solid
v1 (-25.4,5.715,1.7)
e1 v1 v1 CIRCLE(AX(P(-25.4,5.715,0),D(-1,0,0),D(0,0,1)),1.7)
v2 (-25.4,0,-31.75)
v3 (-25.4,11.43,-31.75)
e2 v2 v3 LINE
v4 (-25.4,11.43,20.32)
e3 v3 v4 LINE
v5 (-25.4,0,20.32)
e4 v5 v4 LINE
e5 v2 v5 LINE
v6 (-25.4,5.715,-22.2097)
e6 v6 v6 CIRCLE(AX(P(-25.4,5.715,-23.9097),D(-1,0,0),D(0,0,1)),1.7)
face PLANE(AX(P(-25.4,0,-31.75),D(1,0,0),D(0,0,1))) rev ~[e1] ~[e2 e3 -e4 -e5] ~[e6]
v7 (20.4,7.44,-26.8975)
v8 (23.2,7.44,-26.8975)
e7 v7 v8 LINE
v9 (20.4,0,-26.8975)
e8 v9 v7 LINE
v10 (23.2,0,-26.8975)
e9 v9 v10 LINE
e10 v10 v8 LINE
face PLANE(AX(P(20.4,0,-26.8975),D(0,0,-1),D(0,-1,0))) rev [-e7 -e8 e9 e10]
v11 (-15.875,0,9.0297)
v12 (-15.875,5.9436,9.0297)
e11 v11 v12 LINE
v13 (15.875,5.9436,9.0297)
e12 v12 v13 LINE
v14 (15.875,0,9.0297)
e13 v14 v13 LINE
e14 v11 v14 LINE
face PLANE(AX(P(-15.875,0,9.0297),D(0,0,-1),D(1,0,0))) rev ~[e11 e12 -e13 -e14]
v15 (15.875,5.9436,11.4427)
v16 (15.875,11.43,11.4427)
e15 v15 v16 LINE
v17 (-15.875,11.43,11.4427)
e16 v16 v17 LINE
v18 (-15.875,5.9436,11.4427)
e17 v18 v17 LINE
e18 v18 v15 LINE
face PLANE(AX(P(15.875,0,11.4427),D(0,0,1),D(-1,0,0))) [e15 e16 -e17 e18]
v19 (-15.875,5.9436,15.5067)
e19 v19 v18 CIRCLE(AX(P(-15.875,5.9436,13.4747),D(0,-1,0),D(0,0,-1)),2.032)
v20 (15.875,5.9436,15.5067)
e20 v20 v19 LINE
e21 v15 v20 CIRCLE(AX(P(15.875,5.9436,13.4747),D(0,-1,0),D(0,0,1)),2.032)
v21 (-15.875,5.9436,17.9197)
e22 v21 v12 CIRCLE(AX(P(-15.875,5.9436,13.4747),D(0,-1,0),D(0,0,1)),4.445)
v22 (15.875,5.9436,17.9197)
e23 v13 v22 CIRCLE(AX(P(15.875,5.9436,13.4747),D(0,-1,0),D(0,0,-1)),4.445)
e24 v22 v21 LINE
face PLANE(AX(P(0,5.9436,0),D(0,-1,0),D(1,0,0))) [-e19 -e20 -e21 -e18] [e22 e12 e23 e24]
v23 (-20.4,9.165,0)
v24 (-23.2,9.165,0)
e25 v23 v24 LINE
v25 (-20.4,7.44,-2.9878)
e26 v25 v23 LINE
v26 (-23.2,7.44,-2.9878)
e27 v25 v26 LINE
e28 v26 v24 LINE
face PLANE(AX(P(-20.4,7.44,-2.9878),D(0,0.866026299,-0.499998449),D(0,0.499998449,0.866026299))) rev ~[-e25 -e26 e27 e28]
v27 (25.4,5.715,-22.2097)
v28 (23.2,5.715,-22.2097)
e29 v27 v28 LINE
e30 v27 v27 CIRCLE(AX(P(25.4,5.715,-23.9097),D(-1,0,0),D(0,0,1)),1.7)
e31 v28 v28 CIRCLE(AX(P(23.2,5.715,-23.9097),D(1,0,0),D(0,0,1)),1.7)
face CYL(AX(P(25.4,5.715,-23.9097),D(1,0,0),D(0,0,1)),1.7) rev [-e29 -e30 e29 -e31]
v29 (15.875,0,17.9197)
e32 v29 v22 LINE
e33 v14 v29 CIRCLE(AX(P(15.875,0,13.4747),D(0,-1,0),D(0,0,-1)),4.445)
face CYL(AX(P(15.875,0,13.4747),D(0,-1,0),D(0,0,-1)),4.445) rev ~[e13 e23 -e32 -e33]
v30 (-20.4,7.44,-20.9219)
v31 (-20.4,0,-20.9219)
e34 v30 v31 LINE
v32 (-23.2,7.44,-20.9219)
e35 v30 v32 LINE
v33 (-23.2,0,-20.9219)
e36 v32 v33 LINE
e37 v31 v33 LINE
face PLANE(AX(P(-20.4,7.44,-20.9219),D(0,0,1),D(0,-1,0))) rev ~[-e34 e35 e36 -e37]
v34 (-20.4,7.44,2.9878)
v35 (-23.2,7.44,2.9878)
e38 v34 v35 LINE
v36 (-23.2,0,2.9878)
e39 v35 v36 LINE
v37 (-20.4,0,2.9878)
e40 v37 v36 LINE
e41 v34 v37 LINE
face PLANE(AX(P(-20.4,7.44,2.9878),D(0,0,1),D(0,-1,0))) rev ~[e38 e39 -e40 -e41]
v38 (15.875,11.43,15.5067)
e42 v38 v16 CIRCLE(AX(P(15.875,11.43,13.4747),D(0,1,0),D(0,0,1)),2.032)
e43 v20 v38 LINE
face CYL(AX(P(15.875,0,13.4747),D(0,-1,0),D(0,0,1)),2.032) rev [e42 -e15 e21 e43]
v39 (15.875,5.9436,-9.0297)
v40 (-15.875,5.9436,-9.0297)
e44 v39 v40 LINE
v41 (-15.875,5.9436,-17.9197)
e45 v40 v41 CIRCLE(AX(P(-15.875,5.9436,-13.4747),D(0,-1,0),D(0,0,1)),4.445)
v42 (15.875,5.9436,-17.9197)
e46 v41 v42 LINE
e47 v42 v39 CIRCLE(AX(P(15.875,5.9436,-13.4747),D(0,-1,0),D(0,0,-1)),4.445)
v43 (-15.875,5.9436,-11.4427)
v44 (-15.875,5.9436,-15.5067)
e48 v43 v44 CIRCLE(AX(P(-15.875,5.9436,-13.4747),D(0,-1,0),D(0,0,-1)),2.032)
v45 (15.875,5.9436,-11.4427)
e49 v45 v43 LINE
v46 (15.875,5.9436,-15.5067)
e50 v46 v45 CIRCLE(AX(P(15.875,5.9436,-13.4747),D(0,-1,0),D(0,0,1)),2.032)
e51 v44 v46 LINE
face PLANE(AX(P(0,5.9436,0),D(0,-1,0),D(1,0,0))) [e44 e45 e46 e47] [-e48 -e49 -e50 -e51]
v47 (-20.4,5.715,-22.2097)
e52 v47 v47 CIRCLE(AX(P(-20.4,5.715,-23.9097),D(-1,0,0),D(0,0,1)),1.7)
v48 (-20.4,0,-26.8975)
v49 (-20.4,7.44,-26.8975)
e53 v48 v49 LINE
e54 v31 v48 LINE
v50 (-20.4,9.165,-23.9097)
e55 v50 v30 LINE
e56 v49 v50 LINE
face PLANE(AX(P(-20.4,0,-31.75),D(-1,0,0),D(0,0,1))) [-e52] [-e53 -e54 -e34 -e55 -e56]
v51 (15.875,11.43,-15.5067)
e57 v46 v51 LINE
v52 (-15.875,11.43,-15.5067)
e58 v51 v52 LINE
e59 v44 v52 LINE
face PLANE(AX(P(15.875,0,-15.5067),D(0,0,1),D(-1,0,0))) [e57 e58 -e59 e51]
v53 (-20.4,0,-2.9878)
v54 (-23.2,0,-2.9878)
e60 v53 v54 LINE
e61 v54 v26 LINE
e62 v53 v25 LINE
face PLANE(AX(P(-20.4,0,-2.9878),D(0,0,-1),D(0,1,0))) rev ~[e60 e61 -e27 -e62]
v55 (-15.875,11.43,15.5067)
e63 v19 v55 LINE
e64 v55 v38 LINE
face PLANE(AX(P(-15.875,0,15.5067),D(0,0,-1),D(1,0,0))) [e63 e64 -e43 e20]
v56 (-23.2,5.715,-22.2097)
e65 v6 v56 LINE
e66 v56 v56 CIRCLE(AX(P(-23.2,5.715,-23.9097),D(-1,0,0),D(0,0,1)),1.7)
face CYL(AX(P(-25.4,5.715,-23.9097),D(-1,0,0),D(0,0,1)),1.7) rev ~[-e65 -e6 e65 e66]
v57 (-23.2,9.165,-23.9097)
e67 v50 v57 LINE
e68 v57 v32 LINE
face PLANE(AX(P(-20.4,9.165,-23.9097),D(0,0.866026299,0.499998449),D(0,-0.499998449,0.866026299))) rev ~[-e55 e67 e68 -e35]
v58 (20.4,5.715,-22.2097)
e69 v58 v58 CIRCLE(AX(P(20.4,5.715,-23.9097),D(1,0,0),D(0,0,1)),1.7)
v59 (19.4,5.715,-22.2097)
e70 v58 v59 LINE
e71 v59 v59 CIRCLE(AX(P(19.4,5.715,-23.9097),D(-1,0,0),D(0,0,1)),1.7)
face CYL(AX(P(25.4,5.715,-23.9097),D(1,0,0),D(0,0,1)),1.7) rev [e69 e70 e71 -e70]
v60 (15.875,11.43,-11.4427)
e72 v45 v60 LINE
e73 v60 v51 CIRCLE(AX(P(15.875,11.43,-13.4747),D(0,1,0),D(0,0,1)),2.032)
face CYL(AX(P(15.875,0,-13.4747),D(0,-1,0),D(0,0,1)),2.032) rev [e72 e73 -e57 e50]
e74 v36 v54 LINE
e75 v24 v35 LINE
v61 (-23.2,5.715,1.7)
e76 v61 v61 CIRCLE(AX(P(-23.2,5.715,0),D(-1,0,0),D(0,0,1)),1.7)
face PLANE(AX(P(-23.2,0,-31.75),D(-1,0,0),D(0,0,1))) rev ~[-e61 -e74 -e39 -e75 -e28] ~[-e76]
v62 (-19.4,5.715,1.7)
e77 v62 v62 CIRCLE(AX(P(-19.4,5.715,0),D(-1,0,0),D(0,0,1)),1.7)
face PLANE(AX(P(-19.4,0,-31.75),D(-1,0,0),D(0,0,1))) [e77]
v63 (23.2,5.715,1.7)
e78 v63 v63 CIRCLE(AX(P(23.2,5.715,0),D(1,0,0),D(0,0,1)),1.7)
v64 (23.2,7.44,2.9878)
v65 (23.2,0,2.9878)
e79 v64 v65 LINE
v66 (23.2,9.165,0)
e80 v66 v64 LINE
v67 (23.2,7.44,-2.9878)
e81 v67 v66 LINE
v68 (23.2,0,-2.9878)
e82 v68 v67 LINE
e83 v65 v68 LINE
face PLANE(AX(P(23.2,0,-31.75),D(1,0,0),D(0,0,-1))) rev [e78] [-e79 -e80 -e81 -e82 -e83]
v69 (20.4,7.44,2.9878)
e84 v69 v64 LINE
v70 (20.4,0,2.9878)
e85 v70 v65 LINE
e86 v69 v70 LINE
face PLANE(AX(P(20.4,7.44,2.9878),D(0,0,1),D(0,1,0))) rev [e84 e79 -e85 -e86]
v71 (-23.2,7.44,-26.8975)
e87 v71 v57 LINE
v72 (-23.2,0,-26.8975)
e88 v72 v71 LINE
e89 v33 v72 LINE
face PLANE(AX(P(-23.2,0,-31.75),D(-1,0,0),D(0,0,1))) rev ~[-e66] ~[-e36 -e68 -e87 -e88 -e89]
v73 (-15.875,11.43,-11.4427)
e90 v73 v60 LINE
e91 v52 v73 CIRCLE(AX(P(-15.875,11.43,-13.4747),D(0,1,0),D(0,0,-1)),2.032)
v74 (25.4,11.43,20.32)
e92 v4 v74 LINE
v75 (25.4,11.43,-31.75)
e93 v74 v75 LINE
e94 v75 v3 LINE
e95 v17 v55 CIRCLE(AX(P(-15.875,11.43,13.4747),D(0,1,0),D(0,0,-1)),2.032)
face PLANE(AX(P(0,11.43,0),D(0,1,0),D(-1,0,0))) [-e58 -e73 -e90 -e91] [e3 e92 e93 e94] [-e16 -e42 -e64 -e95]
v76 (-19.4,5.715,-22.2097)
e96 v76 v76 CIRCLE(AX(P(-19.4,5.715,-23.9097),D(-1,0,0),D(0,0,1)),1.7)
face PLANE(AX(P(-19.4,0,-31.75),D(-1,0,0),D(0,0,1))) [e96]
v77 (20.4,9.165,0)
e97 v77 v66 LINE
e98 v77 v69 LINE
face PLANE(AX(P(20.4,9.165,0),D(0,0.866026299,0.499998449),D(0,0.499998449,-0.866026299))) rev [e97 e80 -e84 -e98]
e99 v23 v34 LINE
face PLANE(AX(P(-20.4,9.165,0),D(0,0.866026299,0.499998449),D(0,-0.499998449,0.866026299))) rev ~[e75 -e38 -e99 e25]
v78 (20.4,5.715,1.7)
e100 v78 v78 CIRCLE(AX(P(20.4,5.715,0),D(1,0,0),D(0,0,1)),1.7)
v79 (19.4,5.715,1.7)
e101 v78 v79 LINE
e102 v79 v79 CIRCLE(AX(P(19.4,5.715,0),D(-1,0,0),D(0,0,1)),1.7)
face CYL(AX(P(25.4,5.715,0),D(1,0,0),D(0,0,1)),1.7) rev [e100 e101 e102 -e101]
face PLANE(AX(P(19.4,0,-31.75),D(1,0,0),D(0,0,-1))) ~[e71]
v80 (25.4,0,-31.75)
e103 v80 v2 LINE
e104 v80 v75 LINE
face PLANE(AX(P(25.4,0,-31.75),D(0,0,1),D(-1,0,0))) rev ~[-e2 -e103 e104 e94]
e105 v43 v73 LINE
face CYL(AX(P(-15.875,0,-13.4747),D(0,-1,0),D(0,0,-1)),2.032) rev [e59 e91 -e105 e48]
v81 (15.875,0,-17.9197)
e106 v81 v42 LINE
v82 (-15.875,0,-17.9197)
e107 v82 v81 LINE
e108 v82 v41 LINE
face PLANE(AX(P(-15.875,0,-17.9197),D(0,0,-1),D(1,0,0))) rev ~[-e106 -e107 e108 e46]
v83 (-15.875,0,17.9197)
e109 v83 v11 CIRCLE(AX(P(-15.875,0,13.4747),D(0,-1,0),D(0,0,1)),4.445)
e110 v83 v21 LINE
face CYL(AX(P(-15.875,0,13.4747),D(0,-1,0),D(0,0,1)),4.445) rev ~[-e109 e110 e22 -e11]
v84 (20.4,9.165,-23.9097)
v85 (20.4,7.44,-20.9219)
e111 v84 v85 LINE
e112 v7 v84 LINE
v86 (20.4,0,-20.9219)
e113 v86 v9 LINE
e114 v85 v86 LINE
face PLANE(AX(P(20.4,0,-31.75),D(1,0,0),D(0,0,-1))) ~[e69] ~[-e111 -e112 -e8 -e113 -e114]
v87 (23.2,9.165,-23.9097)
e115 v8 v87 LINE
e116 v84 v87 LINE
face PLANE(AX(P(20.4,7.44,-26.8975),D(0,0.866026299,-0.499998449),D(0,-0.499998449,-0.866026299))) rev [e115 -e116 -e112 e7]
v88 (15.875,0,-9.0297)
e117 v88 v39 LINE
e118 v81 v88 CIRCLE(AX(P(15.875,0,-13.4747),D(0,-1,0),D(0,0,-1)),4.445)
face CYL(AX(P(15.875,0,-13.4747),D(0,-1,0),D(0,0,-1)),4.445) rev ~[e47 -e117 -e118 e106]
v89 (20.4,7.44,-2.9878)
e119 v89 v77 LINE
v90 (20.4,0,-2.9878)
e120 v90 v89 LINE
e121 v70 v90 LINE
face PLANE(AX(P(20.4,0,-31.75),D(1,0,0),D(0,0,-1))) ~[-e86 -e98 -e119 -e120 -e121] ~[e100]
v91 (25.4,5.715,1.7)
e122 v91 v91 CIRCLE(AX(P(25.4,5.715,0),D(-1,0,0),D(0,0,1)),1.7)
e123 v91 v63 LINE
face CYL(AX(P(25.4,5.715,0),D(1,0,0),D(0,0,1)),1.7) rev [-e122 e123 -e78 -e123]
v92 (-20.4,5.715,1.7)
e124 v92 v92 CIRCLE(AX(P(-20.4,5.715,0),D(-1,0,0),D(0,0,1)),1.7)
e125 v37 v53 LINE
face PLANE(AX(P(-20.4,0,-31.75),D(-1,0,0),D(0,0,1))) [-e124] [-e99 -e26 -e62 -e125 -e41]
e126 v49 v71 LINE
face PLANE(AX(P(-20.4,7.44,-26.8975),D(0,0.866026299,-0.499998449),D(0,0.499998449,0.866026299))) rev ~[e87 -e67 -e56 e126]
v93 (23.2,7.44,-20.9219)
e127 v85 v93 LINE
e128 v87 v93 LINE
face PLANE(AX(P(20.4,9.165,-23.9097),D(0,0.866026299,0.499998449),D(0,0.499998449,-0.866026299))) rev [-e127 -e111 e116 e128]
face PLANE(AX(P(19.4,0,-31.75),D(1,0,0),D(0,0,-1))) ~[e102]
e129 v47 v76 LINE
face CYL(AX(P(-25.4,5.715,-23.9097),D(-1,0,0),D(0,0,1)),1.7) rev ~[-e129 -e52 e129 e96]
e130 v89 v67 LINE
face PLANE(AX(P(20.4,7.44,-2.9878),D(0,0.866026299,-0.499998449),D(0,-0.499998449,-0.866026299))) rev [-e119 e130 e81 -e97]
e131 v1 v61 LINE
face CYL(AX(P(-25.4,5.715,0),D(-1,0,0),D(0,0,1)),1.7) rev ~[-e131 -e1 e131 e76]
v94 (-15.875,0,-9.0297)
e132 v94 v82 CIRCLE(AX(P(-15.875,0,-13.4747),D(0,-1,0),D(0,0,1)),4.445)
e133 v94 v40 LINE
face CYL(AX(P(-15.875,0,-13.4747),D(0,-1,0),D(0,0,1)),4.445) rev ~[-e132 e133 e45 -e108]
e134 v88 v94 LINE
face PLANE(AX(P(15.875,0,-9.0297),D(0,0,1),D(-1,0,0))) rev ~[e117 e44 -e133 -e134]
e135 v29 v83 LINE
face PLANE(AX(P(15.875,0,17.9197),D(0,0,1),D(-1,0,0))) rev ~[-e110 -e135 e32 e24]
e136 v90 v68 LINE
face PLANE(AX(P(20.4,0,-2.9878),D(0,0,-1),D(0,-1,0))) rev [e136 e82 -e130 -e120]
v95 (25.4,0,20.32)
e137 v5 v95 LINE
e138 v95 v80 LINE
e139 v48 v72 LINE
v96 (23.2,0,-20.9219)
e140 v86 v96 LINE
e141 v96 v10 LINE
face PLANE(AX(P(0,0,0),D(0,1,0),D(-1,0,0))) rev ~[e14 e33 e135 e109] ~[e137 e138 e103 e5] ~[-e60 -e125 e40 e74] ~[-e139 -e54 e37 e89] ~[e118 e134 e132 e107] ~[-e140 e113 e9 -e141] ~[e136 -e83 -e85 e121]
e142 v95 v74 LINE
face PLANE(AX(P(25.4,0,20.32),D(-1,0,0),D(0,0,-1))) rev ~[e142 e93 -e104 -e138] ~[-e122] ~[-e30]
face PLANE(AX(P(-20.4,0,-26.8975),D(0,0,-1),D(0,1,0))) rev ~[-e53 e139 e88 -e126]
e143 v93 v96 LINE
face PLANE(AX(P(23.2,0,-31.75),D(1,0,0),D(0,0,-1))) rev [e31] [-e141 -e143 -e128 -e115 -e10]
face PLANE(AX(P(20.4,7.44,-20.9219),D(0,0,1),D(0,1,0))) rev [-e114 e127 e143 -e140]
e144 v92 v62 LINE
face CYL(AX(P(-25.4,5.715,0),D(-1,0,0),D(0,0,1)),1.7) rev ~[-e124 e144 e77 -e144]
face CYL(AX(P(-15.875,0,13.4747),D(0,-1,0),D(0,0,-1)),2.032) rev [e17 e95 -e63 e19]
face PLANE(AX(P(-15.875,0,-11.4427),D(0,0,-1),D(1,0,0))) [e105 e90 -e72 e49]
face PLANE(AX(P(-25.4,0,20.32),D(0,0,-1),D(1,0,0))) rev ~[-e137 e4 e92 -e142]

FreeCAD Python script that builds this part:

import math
import FreeCAD as App
import Part
import Sketcher
from FreeCAD import Vector
Q = App.Units.Quantity


def add_polygon(sketch, points):
    """Adds a closed chain of lines whose ends are joined by coincident constraints."""
    first, n = sketch.GeometryCount, len(points)
    for a, b in zip(points, points[1:] + points[:1]):
        sketch.addGeometry(Part.LineSegment(App.Vector(*a, 0), App.Vector(*b, 0)), False)
    for i in range(n):
        sketch.addConstraint(Sketcher.Constraint("Coincident", first + i, 2, first + (i + 1) % n, 1))

doc = App.newDocument("Part")
body = doc.addObject("PartDesign::Body", "Body")

# Sketch on XZ plane
sketch1 = body.newObject("Sketcher::SketchObject", "Sketch")
sketch1.AttachmentSupport = (doc.getObject("XZ_Plane"), [""])
sketch1.MapMode = "FlatFace"
add_polygon(sketch1, [(-25.4, 20.3), (25.4, 20.3), (25.4, -31.8), (-25.4, -31.8)])  # lines 0-3
sketch1.addGeometry(Part.LineSegment(Vector(-15.9, -15.5, 0), Vector(15.9, -15.5, 0)), False)  # 4
sketch1.addGeometry(Part.ArcOfCircle(Part.Circle(Vector(15.9, -13.5, 0), Vector(0, 0, 1), 2), math.radians(-90), math.radians(90)), False)  # 5
sketch1.addGeometry(Part.LineSegment(Vector(15.9, -11.4, 0), Vector(-15.9, -11.4, 0)), False)  # 6
sketch1.addGeometry(Part.ArcOfCircle(Part.Circle(Vector(-15.9, -13.5, 0), Vector(0, 0, 1), 2), math.radians(90), math.radians(270)), False)  # 7
sketch1.addGeometry(Part.LineSegment(Vector(15.9, 15.5, 0), Vector(-15.9, 15.5, 0)), False)  # 8
sketch1.addGeometry(Part.ArcOfCircle(Part.Circle(Vector(-15.9, 13.5, 0), Vector(0, 0, 1), 2), math.radians(90), math.radians(270)), False)  # 9
sketch1.addGeometry(Part.LineSegment(Vector(-15.9, 11.4, 0), Vector(15.9, 11.4, 0)), False)  # 10
sketch1.addGeometry(Part.ArcOfCircle(Part.Circle(Vector(15.9, 13.5, 0), Vector(0, 0, 1), 2), math.radians(-90), math.radians(90)), False)  # 11
sketch1.addConstraint([
    Sketcher.Constraint("Tangent", 4, 2, 5, 1),
    Sketcher.Constraint("Tangent", 5, 2, 6, 1),
    Sketcher.Constraint("Tangent", 6, 2, 7, 1),
    Sketcher.Constraint("Tangent", 7, 2, 4, 1),
    Sketcher.Constraint("Tangent", 8, 2, 9, 1),
    Sketcher.Constraint("Tangent", 9, 2, 10, 1),
    Sketcher.Constraint("Tangent", 10, 2, 11, 1),
    Sketcher.Constraint("Tangent", 11, 2, 8, 1),
    Sketcher.Constraint("Horizontal", 0),
    Sketcher.Constraint("Vertical", 1),
    Sketcher.Constraint("Horizontal", 2),
    Sketcher.Constraint("Vertical", 3),
    Sketcher.Constraint("Horizontal", 4),
    Sketcher.Constraint("Horizontal", 6),
    Sketcher.Constraint("Horizontal", 8),
    Sketcher.Constraint("Horizontal", 10),
    Sketcher.Constraint("Equal", 7, 9),
    Sketcher.Constraint("Symmetric", 5, 3, 9, 3, -1, 1),
    Sketcher.Constraint("Vertical", 7, 3, 9, 3),
    Sketcher.Constraint("Vertical", 5, 3, 11, 3),
    Sketcher.Constraint("DistanceX", 0, 1, 0, 2, Q("2 in")),
    Sketcher.Constraint("Radius", 5, Q("0.08 in")),
    Sketcher.Constraint("DistanceX", -1, 1, 0, 2, Q("1 in")),
    Sketcher.Constraint("DistanceY", 7, 3, 9, 3, Q("1.061 in")),
    Sketcher.Constraint("DistanceX", 11, 3, 0, 2, Q("0.375 in")),
    Sketcher.Constraint("DistanceY", 1, 2, 1, 1, Q("2.05 in")),
    Sketcher.Constraint("DistanceY", -1, 1, 0, 2, Q("0.8 in")),
])
pad1 = body.newObject("PartDesign::Pad", "Pad")
pad1.Profile = sketch1
pad1.Length = Q("0.45 in")
pad1.Reversed = True

# Sketch on XZ plane
sketch2 = body.newObject("Sketcher::SketchObject", "Sketch001")
sketch2.AttachmentSupport = (doc.getObject("XZ_Plane"), [""])
sketch2.MapMode = "FlatFace"
sketch2.addGeometry([
    Part.ArcOfCircle(Part.Circle(Vector(-15.9, -13.5, 0), Vector(0, 0, 1), 4.4), math.radians(90), math.radians(270)),  # 0
    Part.LineSegment(Vector(-15.9, -17.9, 0), Vector(15.9, -17.9, 0)),  # 1
    Part.ArcOfCircle(Part.Circle(Vector(15.9, -13.5, 0), Vector(0, 0, 1), 4.4), math.radians(-90), math.radians(90)),  # 2
    Part.LineSegment(Vector(15.9, -9, 0), Vector(-15.9, -9, 0)),  # 3
    Part.ArcOfCircle(Part.Circle(Vector(-15.9, 13.5, 0), Vector(0, 0, 1), 4.4), math.radians(90), math.radians(270)),  # 4
    Part.LineSegment(Vector(-15.9, 9, 0), Vector(15.9, 9, 0)),  # 5
    Part.ArcOfCircle(Part.Circle(Vector(15.9, 13.5, 0), Vector(0, 0, 1), 4.4), math.radians(-90), math.radians(90)),  # 6
    Part.LineSegment(Vector(15.9, 17.9, 0), Vector(-15.9, 17.9, 0)),  # 7
], False)
sketch2.addConstraint([
    Sketcher.Constraint("Tangent", 0, 2, 1, 1),
    Sketcher.Constraint("Tangent", 1, 2, 2, 1),
    Sketcher.Constraint("Tangent", 2, 2, 3, 1),
    Sketcher.Constraint("Tangent", 3, 2, 0, 1),
    Sketcher.Constraint("Tangent", 4, 2, 5, 1),
    Sketcher.Constraint("Tangent", 5, 2, 6, 1),
    Sketcher.Constraint("Tangent", 6, 2, 7, 1),
    Sketcher.Constraint("Tangent", 7, 2, 4, 1),
    Sketcher.Constraint("Horizontal", 1),
    Sketcher.Constraint("Horizontal", 3),
    Sketcher.Constraint("Horizontal", 5),
    Sketcher.Constraint("Horizontal", 7),
    Sketcher.Constraint("Equal", 2, 4),
    Sketcher.Constraint("Symmetric", 2, 3, 4, 3, -1, 1),
    Sketcher.Constraint("Vertical", 0, 3, 4, 3),
    Sketcher.Constraint("Vertical", 2, 3, 6, 3),
    Sketcher.Constraint("Radius", 0, Q("0.175 in")),
    Sketcher.Constraint("DistanceX", 1, 1, 1, 2, Q("1.25 in")),
    Sketcher.Constraint("DistanceY", 0, 3, 4, 3, Q("1.061 in")),
])
pocket1 = body.newObject("PartDesign::Pocket", "Pocket")
pocket1.Profile = sketch2
pocket1.Length = Q("0.234 in")

# Sketch on YZ plane
sketch3 = body.newObject("Sketcher::SketchObject", "Sketch002")
sketch3.AttachmentSupport = (doc.getObject("YZ_Plane"), [""])
sketch3.MapMode = "FlatFace"
sketch3.AttachmentOffset = App.Placement(Vector(0, 0, -20.4), App.Rotation())
add_polygon(sketch3, [(0, -26.9), (0, -20.9), (7.4, -20.9), (9.2, -23.9), (7.4, -26.9)])  # lines 0-4
add_polygon(sketch3, [(0, -3), (0, 3), (7.4, 3), (9.2, 0), (7.4, -3)])  # lines 5-9
sketch3.addConstraint([
    Sketcher.Constraint("Vertical", 0),
    Sketcher.Constraint("Horizontal", 1),
    Sketcher.Constraint("Horizontal", 4),
    Sketcher.Constraint("Vertical", 5),
    Sketcher.Constraint("Horizontal", 6),
    Sketcher.Constraint("Horizontal", 9),
    Sketcher.Constraint("Symmetric", 5, 2, 9, 2, -1, 1),
    Sketcher.Constraint("PointOnObject", 0, 2, -2),
    Sketcher.Constraint("PointOnObject", 7, 2, -1),
    Sketcher.Constraint("Parallel", 2, 7),
    Sketcher.Constraint("Parallel", 3, 8),
    Sketcher.Constraint("Vertical", 1, 2, 3, 2),
    Sketcher.Constraint("Vertical", 3, 2, 6, 2),
    Sketcher.Constraint("Vertical", 2, 2, 7, 2),
    Sketcher.Constraint("Vertical", 6, 2, 8, 2),
    Sketcher.Constraint("Angle", 2, Q("-60 deg")),
    Sketcher.Constraint("DistanceX", 1, 1, 1, 2, 7.44),
    Sketcher.Constraint("DistanceY", 0, 1, 0, 2, 5.9756),
    Sketcher.Constraint("DistanceY", 0, 2, -1, 1, Q("0.8237 in")),
])
pocket2 = body.newObject("PartDesign::Pocket", "Pocket001")
pocket2.Profile = sketch3
pocket2.Length = 2.8

# Sketch on YZ plane
sketch4 = body.newObject("Sketcher::SketchObject", "Sketch003")
sketch4.AttachmentSupport = (doc.getObject("YZ_Plane"), [""])
sketch4.MapMode = "FlatFace"
sketch4.AttachmentOffset = App.Placement(Vector(0, 0, -1 * 25.4), App.Rotation())
sketch4.addGeometry([
    Part.Circle(Vector(5.7, -23.9, 0), Vector(0, 0, 1), 1.7),
    Part.Circle(Vector(5.7, 0, 0), Vector(0, 0, 1), 1.7),
], False)
sketch4.addConstraint([
    Sketcher.Constraint("Equal", 0, 1),
    Sketcher.Constraint("PointOnObject", 1, 3, -1),
    Sketcher.Constraint("Vertical", 0, 3, 1, 3),
    Sketcher.Constraint("Diameter", 0, 3.4),
    Sketcher.Constraint("DistanceX", -1, 1, 0, 3, Q("0.225 in")),
    Sketcher.Constraint("DistanceY", 0, 3, -1, 1, 23.9097),
])
pocket3 = body.newObject("PartDesign::Pocket", "Pocket002")
pocket3.Profile = sketch4
pocket3.Length = 6
pocket3.Reversed = True
doc.recompute()

mirrored = body.newObject("PartDesign::Mirrored", "Mirrored")
mirrored.Originals = [pocket2]
mirrored.MirrorPlane = (doc.getObject("YZ_Plane"), [""])
body.Tip = mirrored
doc.recompute()

mirrored2 = body.newObject("PartDesign::Mirrored", "Mirrored001")
mirrored2.Originals = [pocket3]
mirrored2.MirrorPlane = (doc.getObject("YZ_Plane"), [""])
body.Tip = mirrored2

doc.recompute()
